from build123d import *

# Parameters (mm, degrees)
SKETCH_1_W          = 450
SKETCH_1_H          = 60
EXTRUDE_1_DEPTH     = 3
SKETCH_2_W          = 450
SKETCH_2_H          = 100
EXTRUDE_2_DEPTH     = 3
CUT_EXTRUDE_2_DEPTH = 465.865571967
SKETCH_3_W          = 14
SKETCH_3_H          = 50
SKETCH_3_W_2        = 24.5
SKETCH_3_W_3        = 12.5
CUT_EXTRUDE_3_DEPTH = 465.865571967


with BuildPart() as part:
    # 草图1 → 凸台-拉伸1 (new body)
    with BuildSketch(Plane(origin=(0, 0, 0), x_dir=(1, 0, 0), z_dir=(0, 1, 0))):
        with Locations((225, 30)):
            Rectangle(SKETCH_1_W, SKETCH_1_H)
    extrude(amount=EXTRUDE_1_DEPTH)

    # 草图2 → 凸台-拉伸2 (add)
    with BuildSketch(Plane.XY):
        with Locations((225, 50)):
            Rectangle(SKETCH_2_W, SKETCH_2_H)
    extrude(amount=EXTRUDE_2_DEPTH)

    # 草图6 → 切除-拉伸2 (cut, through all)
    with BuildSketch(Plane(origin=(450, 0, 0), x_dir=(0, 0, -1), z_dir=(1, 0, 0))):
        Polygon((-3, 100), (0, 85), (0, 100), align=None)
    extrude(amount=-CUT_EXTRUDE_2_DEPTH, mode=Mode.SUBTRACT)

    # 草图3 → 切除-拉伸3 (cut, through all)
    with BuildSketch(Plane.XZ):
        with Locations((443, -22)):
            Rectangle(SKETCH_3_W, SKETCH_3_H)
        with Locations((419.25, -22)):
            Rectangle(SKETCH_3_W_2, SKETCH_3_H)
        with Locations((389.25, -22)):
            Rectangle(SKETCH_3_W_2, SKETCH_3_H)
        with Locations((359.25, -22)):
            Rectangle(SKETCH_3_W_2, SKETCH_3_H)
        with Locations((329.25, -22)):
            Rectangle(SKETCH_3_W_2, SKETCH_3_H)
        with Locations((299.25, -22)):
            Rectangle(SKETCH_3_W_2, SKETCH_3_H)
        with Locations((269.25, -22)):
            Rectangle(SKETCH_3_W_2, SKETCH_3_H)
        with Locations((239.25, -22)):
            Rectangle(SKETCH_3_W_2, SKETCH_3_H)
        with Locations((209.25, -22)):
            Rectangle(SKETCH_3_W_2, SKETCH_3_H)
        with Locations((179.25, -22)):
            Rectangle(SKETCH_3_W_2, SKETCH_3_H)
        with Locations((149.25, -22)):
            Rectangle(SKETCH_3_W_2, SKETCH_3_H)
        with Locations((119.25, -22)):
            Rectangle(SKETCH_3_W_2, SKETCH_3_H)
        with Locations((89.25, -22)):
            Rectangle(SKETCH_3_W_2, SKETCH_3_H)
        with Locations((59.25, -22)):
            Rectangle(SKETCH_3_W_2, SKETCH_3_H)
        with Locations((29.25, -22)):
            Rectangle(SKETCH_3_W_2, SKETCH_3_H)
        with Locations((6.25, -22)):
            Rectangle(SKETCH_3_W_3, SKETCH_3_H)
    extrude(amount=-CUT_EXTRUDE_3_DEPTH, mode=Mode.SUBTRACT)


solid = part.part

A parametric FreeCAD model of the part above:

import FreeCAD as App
import Part
import Sketcher
from FreeCAD import Vector


def add_polygon(sketch, points):
    """Adds a closed chain of lines whose ends are joined by coincident constraints."""
    first, n = sketch.GeometryCount, len(points)
    for a, b in zip(points, points[1:] + points[:1]):
        sketch.addGeometry(Part.LineSegment(App.Vector(*a, 0), App.Vector(*b, 0)), False)
    for i in range(n):
        sketch.addConstraint(Sketcher.Constraint("Coincident", first + i, 2, first + (i + 1) % n, 1))

doc = App.newDocument("Part")
body = doc.addObject("PartDesign::Body", "Body")

# Sketch on XZ plane
sketch1 = body.newObject("Sketcher::SketchObject", "Sketch")
sketch1.AttachmentSupport = (doc.getObject("XZ_Plane"), [""])
sketch1.MapMode = "FlatFace"
add_polygon(sketch1, [(0, -60), (0, 0), (450, 0), (450, -60)])  # lines 0-3
sketch1.addConstraint([
    Sketcher.Constraint("Vertical", 0),
    Sketcher.Constraint("Horizontal", 1),
    Sketcher.Constraint("Vertical", 2),
    Sketcher.Constraint("Horizontal", 3),
    Sketcher.Constraint("Coincident", 0, 2, -1, 1),
    Sketcher.Constraint("DistanceX", 1, 1, 1, 2, 450.0),
    Sketcher.Constraint("DistanceY", 0, 1, 0, 2, 60.0),
])
pad1 = body.newObject("PartDesign::Pad", "Pad")
pad1.Profile = sketch1
pad1.Length = 3
pad1.Reversed = True

# Sketch on XY plane
sketch2 = body.newObject("Sketcher::SketchObject", "Sketch001")
sketch2.AttachmentSupport = (doc.getObject("XY_Plane"), [""])
sketch2.MapMode = "FlatFace"
add_polygon(sketch2, [(0, 100), (0, 0), (450, 0), (450, 100)])  # lines 0-3
sketch2.addConstraint([
    Sketcher.Constraint("Vertical", 0),
    Sketcher.Constraint("Horizontal", 1),
    Sketcher.Constraint("Vertical", 2),
    Sketcher.Constraint("Horizontal", 3),
    Sketcher.Constraint("Coincident", 0, 2, -1, 1),
    Sketcher.Constraint("DistanceX", 1, 1, 1, 2, 450.0),
    Sketcher.Constraint("DistanceY", 0, 2, 0, 1, 100.0),
])
pad2 = body.newObject("PartDesign::Pad", "Pad001")
pad2.Profile = sketch2
pad2.Length = 3

# Sketch on YZ plane
sketch3 = body.newObject("Sketcher::SketchObject", "Sketch002")
sketch3.AttachmentSupport = (doc.getObject("YZ_Plane"), [""])
sketch3.MapMode = "FlatFace"
sketch3.AttachmentOffset = App.Placement(Vector(0, 0, 450), App.Rotation())
add_polygon(sketch3, [(100, 3), (85, 0), (100, 0)])  # lines 0-2
sketch3.addConstraint([
    Sketcher.Constraint("Horizontal", 1),
    Sketcher.Constraint("Vertical", 2),
    Sketcher.Constraint("PointOnObject", 0, 2, -1),
    Sketcher.Constraint("DistanceX", 1, 1, 1, 2, 15.0),
    Sketcher.Constraint("DistanceY", 2, 1, 2, 2, 3.0),
    Sketcher.Constraint("DistanceX", -1, 1, 0, 2, 85.0),
])
pocket1 = body.newObject("PartDesign::Pocket", "Pocket")
pocket1.Profile = sketch3
pocket1.Type = "ThroughAll"

# Sketch on XZ plane
sketch4 = body.newObject("Sketcher::SketchObject", "Sketch003")
sketch4.AttachmentSupport = (doc.getObject("XZ_Plane"), [""])
sketch4.MapMode = "FlatFace"
add_polygon(sketch4, [(436, 3), (436, -47), (450, -47), (450, 3)])  # lines 0-3
add_polygon(sketch4, [(407, 3), (407, -47), (431.5, -47), (431.5, 3)])  # lines 4-7
add_polygon(sketch4, [(377, 3), (377, -47), (401.5, -47), (401.5, 3)])  # lines 8-11
add_polygon(sketch4, [(347, 3), (347, -47), (371.5, -47), (371.5, 3)])  # lines 12-15
add_polygon(sketch4, [(317, 3), (317, -47), (341.5, -47), (341.5, 3)])  # lines 16-19
add_polygon(sketch4, [(287, 3), (287, -47), (311.5, -47), (311.5, 3)])  # lines 20-23
add_polygon(sketch4, [(257, 3), (257, -47), (281.5, -47), (281.5, 3)])  # lines 24-27
add_polygon(sketch4, [(227, 3), (227, -47), (251.5, -47), (251.5, 3)])  # lines 28-31
add_polygon(sketch4, [(197, 3), (197, -47), (221.5, -47), (221.5, 3)])  # lines 32-35
add_polygon(sketch4, [(167, 3), (167, -47), (191.5, -47), (191.5, 3)])  # lines 36-39
add_polygon(sketch4, [(137, 3), (137, -47), (161.5, -47), (161.5, 3)])  # lines 40-43
add_polygon(sketch4, [(107, 3), (107, -47), (131.5, -47), (131.5, 3)])  # lines 44-47
add_polygon(sketch4, [(77, 3), (77, -47), (101.5, -47), (101.5, 3)])  # lines 48-51
add_polygon(sketch4, [(47, 3), (47, -47), (71.5, -47), (71.5, 3)])  # lines 52-55
add_polygon(sketch4, [(17, 3), (17, -47), (41.5, -47), (41.5, 3)])  # lines 56-59
add_polygon(sketch4, [(0, 3), (0, -47), (12.5, -47), (12.5, 3)])  # lines 60-63
sketch4.addConstraint([
    Sketcher.Constraint("Vertical", 0),
    Sketcher.Constraint("Horizontal", 1),
    Sketcher.Constraint("Vertical", 2),
    Sketcher.Constraint("Horizontal", 3),
    Sketcher.Constraint("Vertical", 4),
    Sketcher.Constraint("Horizontal", 5),
    Sketcher.Constraint("Vertical", 6),
    Sketcher.Constraint("Horizontal", 7),
    Sketcher.Constraint("Vertical", 8),
    Sketcher.Constraint("Horizontal", 9),
    Sketcher.Constraint("Vertical", 10),
    Sketcher.Constraint("Horizontal", 11),
    Sketcher.Constraint("Vertical", 12),
    Sketcher.Constraint("Horizontal", 13),
    Sketcher.Constraint("Vertical", 14),
    Sketcher.Constraint("Horizontal", 15),
    Sketcher.Constraint("Vertical", 16),
    Sketcher.Constraint("Horizontal", 17),
    Sketcher.Constraint("Vertical", 18),
    Sketcher.Constraint("Horizontal", 19),
    Sketcher.Constraint("Vertical", 20),
    Sketcher.Constraint("Horizontal", 21),
    Sketcher.Constraint("Vertical", 22),
    Sketcher.Constraint("Horizontal", 23),
    Sketcher.Constraint("Vertical", 24),
    Sketcher.Constraint("Horizontal", 25),
    Sketcher.Constraint("Vertical", 26),
    Sketcher.Constraint("Horizontal", 27),
    Sketcher.Constraint("Vertical", 28),
    Sketcher.Constraint("Horizontal", 29),
    Sketcher.Constraint("Vertical", 30),
    Sketcher.Constraint("Horizontal", 31),
    Sketcher.Constraint("Vertical", 32),
    Sketcher.Constraint("Horizontal", 33),
    Sketcher.Constraint("Vertical", 34),
    Sketcher.Constraint("Horizontal", 35),
    Sketcher.Constraint("Vertical", 36),
    Sketcher.Constraint("Horizontal", 37),
    Sketcher.Constraint("Vertical", 38),
    Sketcher.Constraint("Horizontal", 39),
    Sketcher.Constraint("Vertical", 40),
    Sketcher.Constraint("Horizontal", 41),
    Sketcher.Constraint("Vertical", 42),
    Sketcher.Constraint("Horizontal", 43),
    Sketcher.Constraint("Vertical", 44),
    Sketcher.Constraint("Horizontal", 45),
    Sketcher.Constraint("Vertical", 46),
    Sketcher.Constraint("Horizontal", 47),
    Sketcher.Constraint("Vertical", 48),
    Sketcher.Constraint("Horizontal", 49),
    Sketcher.Constraint("Vertical", 50),
    Sketcher.Constraint("Horizontal", 51),
    Sketcher.Constraint("Vertical", 52),
    Sketcher.Constraint("Horizontal", 53),
    Sketcher.Constraint("Vertical", 54),
    Sketcher.Constraint("Horizontal", 55),
    Sketcher.Constraint("Vertical", 56),
    Sketcher.Constraint("Horizontal", 57),
    Sketcher.Constraint("Vertical", 58),
    Sketcher.Constraint("Horizontal", 59),
    Sketcher.Constraint("Vertical", 60),
    Sketcher.Constraint("Horizontal", 61),
    Sketcher.Constraint("Vertical", 62),
    Sketcher.Constraint("Horizontal", 63),
    Sketcher.Constraint("PointOnObject", 60, 2, -2),
    Sketcher.Constraint("Horizontal", 1, 2, 4, 2),
    Sketcher.Constraint("Horizontal", 3, 2, 6, 2),
    Sketcher.Constraint("Horizontal", 5, 2, 8, 2),
    Sketcher.Constraint("Horizontal", 7, 2, 10, 2),
    Sketcher.Constraint("Horizontal", 9, 2, 12, 2),
    Sketcher.Constraint("Horizontal", 11, 2, 14, 2),
    Sketcher.Constraint("Horizontal", 13, 2, 16, 2),
    Sketcher.Constraint("Horizontal", 15, 2, 18, 2),
    Sketcher.Constraint("Horizontal", 17, 2, 20, 2),
    Sketcher.Constraint("Horizontal", 19, 2, 22, 2),
    Sketcher.Constraint("Horizontal", 21, 2, 24, 2),
    Sketcher.Constraint("Horizontal", 23, 2, 26, 2),
    Sketcher.Constraint("Horizontal", 25, 2, 28, 2),
    Sketcher.Constraint("Horizontal", 27, 2, 30, 2),
    Sketcher.Constraint("Horizontal", 29, 2, 32, 2),
    Sketcher.Constraint("Horizontal", 31, 2, 34, 2),
    Sketcher.Constraint("Horizontal", 33, 2, 36, 2),
    Sketcher.Constraint("Horizontal", 35, 2, 38, 2),
    Sketcher.Constraint("Horizontal", 37, 2, 40, 2),
    Sketcher.Constraint("Horizontal", 39, 2, 42, 2),
    Sketcher.Constraint("Horizontal", 41, 2, 44, 2),
    Sketcher.Constraint("Horizontal", 43, 2, 46, 2),
    Sketcher.Constraint("Horizontal", 45, 2, 48, 2),
    Sketcher.Constraint("Horizontal", 47, 2, 50, 2),
    Sketcher.Constraint("Horizontal", 49, 2, 52, 2),
    Sketcher.Constraint("Horizontal", 51, 2, 54, 2),
    Sketcher.Constraint("Horizontal", 53, 2, 56, 2),
    Sketcher.Constraint("Horizontal", 55, 2, 58, 2),
    Sketcher.Constraint("Horizontal", 57, 2, 60, 2),
    Sketcher.Constraint("Horizontal", 59, 2, 62, 2),
    Sketcher.Constraint("Equal", 7, 9),
    Sketcher.Constraint("Equal", 11, 13),
    Sketcher.Constraint("Equal", 15, 17),
    Sketcher.Constraint("Equal", 19, 21),
    Sketcher.Constraint("Equal", 23, 25),
    Sketcher.Constraint("Equal", 27, 29),
    Sketcher.Constraint("Equal", 31, 33),
    Sketcher.Constraint("Equal", 35, 37),
    Sketcher.Constraint("Equal", 39, 41),
    Sketcher.Constraint("Equal", 43, 45),
    Sketcher.Constraint("Equal", 47, 49),
    Sketcher.Constraint("Equal", 51, 53),
    Sketcher.Constraint("Equal", 55, 57),
    Sketcher.Constraint("DistanceX", 1, 1, 1, 2, 14.0),
    Sketcher.Constraint("DistanceY", 0, 2, 0, 1, 50.0),
    Sketcher.Constraint("DistanceX", 5, 1, 5, 2, 24.5),
    Sketcher.Constraint("DistanceX", 61, 1, 61, 2, 12.5),
    Sketcher.Constraint("DistanceX", -1, 1, 0, 2, 436.0),
    Sketcher.Constraint("DistanceY", 0, 2, -1, 1, 47.0),
    Sketcher.Constraint("DistanceX", -1, 1, 4, 2, 407.0),
    Sketcher.Constraint("DistanceX", -1, 1, 8, 2, 377.0),
    Sketcher.Constraint("DistanceX", -1, 1, 12, 2, 347.0),
    Sketcher.Constraint("DistanceX", -1, 1, 16, 2, 317.0),
    Sketcher.Constraint("DistanceX", -1, 1, 20, 2, 287.0),
    Sketcher.Constraint("DistanceX", -1, 1, 24, 2, 257.0),
    Sketcher.Constraint("DistanceX", -1, 1, 28, 2, 227.0),
    Sketcher.Constraint("DistanceX", -1, 1, 32, 2, 197.0),
    Sketcher.Constraint("DistanceX", -1, 1, 36, 2, 167.0),
    Sketcher.Constraint("DistanceX", -1, 1, 40, 2, 137.0),
    Sketcher.Constraint("DistanceX", -1, 1, 44, 2, 107.0),
    Sketcher.Constraint("DistanceX", -1, 1, 48, 2, 77.0),
    Sketcher.Constraint("DistanceX", -1, 1, 52, 2, 47.0),
    Sketcher.Constraint("DistanceX", -1, 1, 56, 2, 17.0),
])
pocket2 = body.newObject("PartDesign::Pocket", "Pocket001")
pocket2.Profile = sketch4
pocket2.Type = "ThroughAll"

doc.recompute()
